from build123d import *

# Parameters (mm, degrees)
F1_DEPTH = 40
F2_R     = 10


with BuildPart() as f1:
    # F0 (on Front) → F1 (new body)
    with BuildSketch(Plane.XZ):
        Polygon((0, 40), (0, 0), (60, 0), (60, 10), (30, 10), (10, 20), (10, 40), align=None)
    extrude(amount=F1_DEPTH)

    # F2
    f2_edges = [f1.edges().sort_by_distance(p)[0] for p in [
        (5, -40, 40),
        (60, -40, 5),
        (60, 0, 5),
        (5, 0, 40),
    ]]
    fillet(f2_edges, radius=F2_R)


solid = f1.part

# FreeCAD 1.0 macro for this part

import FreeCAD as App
import Part
import Sketcher

V = App.Vector


def edges_at(feature, points):
    """Names of the edges that pass closest to the given points."""
    edges = feature.Shape.Edges
    near = lambda p: min(range(len(edges)), key=lambda i: edges[i].distToShape(Part.Vertex(*p))[0])
    return sorted({f"Edge{near(p) + 1}" for p in points})

doc = App.newDocument("Part")
body = doc.addObject("PartDesign::Body", "Body")

sketch1 = body.newObject("Sketcher::SketchObject", "Sketch")
sketch1.AttachmentSupport = (doc.getObject("XZ_Plane"), [""])
sketch1.MapMode = "FlatFace"
sketch1.addGeometry([
    Part.LineSegment(V(0, 40, 0), V(0, 0, 0)),
    Part.LineSegment(V(0, 0, 0), V(60, 0, 0)),
    Part.LineSegment(V(60, 0, 0), V(60, 10, 0)),
    Part.LineSegment(V(60, 10, 0), V(30, 10, 0)),
    Part.LineSegment(V(30, 10, 0), V(10, 20, 0)),
    Part.LineSegment(V(10, 20, 0), V(10, 40, 0)),
    Part.LineSegment(V(10, 40, 0), V(0, 40, 0)),
], False)
sketch1.addConstraint([
    Sketcher.Constraint("Coincident", 0, 2, 1, 1),
    Sketcher.Constraint("Coincident", 1, 2, 2, 1),
    Sketcher.Constraint("Coincident", 2, 2, 3, 1),
    Sketcher.Constraint("Coincident", 3, 2, 4, 1),
    Sketcher.Constraint("Coincident", 4, 2, 5, 1),
    Sketcher.Constraint("Coincident", 5, 2, 6, 1),
    Sketcher.Constraint("Coincident", 6, 2, 0, 1),
    Sketcher.Constraint("Vertical", 0),
    Sketcher.Constraint("Horizontal", 1),
    Sketcher.Constraint("Vertical", 2),
    Sketcher.Constraint("Horizontal", 3),
    Sketcher.Constraint("Vertical", 5),
    Sketcher.Constraint("Horizontal", 6),
    Sketcher.Constraint("Coincident", 0, 2, -1, 1),
    Sketcher.Constraint("Equal", 6, 2),
    Sketcher.Constraint("DistanceX", 1, 1, 1, 2, 60.0),
    Sketcher.Constraint("DistanceX", 3, 2, 3, 1, 30.0),
    Sketcher.Constraint("DistanceX", 6, 2, 6, 1, 10.0),
    Sketcher.Constraint("DistanceY", 0, 2, 0, 1, 40.0),
    Sketcher.Constraint("DistanceY", 5, 1, 5, 2, 20.0),
])
pad1 = body.newObject("PartDesign::Pad", "Pad")
pad1.Profile = sketch1
pad1.Length = 40
doc.recompute()

fillet = body.newObject("PartDesign::Fillet", "Fillet")
fillet.Base = (pad1, edges_at(pad1, [
    (5, -40, 40),
    (60, -40, 5),
    (60, 0, 5),
    (5, 0, 40),
]))
fillet.Radius = 10

doc.recompute()
